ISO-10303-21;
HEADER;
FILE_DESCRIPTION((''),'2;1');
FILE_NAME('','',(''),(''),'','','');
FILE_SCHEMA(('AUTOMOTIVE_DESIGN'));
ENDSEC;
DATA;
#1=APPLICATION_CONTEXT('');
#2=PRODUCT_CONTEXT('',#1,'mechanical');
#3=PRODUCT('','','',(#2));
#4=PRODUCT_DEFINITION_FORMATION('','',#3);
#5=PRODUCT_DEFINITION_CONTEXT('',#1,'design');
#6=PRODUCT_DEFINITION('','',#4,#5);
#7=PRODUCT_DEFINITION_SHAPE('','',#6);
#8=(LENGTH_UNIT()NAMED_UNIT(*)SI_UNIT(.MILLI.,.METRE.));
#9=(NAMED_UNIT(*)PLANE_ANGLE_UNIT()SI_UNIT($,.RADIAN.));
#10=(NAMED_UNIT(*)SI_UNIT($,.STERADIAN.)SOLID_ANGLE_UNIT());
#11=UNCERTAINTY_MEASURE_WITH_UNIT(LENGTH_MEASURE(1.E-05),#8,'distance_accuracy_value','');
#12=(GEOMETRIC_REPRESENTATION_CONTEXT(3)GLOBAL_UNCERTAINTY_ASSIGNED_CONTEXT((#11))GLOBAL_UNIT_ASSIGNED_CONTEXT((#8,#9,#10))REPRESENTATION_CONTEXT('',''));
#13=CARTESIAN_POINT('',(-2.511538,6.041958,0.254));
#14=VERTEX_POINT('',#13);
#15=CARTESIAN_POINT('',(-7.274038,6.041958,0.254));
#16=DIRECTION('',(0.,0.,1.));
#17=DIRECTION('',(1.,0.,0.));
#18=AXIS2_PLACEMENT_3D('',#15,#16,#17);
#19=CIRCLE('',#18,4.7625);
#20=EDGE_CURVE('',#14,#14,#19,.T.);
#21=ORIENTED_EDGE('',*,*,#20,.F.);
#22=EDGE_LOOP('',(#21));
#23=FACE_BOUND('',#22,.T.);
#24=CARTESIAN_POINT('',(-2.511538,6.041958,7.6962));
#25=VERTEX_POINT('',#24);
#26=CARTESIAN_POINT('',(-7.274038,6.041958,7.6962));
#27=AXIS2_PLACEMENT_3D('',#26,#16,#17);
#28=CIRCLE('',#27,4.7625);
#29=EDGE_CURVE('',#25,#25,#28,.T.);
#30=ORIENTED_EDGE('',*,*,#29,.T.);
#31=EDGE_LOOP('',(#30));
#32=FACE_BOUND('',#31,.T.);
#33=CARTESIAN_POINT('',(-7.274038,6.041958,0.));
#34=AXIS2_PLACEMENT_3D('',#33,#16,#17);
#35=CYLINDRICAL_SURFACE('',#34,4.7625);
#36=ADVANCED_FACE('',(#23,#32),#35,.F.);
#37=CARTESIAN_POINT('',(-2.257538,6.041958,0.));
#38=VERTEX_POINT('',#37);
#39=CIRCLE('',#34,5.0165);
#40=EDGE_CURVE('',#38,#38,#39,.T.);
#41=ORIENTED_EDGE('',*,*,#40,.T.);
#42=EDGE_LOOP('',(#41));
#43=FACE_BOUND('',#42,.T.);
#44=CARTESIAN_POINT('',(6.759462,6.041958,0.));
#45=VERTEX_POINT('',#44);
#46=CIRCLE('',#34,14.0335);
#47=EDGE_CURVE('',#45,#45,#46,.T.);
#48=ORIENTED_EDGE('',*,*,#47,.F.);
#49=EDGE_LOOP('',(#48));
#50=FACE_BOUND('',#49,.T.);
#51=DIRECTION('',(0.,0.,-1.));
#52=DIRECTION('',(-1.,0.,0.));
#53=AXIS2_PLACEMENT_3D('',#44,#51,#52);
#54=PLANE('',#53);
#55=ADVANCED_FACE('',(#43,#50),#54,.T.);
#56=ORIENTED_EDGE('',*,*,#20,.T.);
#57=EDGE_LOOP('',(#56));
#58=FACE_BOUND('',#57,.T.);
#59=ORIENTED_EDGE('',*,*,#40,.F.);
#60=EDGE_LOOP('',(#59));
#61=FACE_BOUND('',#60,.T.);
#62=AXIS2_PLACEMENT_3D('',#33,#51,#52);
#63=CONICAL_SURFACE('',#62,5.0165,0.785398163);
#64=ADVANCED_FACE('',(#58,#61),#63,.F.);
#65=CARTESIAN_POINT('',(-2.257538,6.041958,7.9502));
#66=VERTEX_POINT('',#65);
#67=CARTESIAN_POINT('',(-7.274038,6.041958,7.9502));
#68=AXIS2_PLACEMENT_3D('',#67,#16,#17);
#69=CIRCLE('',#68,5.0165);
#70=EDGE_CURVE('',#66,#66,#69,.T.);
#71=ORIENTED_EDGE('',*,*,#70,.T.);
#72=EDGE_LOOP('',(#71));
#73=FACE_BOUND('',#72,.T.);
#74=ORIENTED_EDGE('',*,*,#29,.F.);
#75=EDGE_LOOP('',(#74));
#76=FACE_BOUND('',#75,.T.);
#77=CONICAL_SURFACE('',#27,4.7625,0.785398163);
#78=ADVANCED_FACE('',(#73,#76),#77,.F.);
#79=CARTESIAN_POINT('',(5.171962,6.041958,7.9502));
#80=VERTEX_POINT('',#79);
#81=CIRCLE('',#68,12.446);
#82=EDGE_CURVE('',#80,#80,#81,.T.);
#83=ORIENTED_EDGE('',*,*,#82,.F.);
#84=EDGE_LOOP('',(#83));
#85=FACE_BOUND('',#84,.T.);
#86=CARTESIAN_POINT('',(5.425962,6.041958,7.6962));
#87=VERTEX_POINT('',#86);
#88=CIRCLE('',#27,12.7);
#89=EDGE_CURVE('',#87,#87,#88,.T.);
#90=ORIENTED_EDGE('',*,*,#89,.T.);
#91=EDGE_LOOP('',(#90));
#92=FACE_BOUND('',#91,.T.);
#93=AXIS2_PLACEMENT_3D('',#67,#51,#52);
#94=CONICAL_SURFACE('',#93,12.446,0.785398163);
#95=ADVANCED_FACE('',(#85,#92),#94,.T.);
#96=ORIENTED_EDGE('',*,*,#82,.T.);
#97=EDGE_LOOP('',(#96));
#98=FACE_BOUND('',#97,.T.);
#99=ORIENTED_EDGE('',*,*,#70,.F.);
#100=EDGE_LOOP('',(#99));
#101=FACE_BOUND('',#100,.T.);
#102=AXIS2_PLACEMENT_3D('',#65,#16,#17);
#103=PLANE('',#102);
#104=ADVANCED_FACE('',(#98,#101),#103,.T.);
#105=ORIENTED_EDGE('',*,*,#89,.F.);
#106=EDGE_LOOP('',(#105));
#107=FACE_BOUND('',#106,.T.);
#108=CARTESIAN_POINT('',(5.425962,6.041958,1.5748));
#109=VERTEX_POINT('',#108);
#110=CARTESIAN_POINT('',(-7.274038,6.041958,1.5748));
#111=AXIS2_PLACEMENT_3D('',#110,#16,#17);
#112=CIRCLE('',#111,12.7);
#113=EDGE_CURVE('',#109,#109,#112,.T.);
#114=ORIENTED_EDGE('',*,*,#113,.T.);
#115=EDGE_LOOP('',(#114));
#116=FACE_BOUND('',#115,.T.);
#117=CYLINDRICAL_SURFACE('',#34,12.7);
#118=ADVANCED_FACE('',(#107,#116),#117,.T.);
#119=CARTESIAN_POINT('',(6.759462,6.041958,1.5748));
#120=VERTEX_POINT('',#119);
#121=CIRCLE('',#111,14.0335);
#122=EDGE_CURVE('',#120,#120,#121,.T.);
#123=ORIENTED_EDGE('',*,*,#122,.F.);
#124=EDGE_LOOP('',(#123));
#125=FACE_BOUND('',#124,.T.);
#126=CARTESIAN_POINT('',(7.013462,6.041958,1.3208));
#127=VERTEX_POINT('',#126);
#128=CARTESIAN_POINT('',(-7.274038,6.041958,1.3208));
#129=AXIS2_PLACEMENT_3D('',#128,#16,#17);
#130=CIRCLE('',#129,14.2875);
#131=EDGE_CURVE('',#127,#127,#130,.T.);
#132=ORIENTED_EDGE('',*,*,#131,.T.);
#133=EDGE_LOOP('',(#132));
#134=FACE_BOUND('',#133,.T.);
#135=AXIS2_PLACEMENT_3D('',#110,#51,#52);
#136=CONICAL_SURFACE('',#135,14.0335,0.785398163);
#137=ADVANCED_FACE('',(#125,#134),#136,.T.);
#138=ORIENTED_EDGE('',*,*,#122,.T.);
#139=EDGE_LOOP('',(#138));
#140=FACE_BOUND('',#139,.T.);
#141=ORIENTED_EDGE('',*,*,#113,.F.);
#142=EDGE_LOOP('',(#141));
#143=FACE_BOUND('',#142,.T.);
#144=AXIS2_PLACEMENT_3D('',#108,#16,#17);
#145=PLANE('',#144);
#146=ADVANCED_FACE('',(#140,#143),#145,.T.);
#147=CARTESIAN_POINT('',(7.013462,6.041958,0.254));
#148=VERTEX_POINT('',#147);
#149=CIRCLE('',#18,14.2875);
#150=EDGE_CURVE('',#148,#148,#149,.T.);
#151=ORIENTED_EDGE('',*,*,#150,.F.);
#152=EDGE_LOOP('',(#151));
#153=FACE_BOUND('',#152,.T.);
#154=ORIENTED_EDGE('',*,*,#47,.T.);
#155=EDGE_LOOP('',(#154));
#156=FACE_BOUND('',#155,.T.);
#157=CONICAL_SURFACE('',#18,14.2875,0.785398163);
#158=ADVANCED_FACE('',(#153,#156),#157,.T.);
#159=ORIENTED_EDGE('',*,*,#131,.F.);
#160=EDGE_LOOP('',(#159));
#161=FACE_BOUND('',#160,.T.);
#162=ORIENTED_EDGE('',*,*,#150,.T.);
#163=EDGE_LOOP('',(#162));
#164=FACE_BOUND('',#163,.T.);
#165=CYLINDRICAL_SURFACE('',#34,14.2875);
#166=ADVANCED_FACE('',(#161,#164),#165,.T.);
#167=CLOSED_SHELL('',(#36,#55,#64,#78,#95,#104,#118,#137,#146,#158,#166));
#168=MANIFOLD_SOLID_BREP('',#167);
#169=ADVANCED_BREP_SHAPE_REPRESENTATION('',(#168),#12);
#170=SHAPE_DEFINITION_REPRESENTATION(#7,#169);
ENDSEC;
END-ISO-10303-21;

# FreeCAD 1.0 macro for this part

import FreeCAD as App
import Part
import Sketcher
Q = App.Units.Quantity


def add_polygon(sketch, points):
    """Adds a closed chain of lines whose ends are joined by coincident constraints."""
    first, n = sketch.GeometryCount, len(points)
    for a, b in zip(points, points[1:] + points[:1]):
        sketch.addGeometry(Part.LineSegment(App.Vector(*a, 0), App.Vector(*b, 0)), False)
    for i in range(n):
        sketch.addConstraint(Sketcher.Constraint("Coincident", first + i, 2, first + (i + 1) % n, 1))

doc = App.newDocument("Part")
body = doc.addObject("PartDesign::Body", "Body")

sketch1 = body.newObject("Sketcher::SketchObject", "Sketch")
sketch1.AttachmentSupport = (doc.getObject("XZ_Plane"), [""])
sketch1.MapMode = "FlatFace"
sketch1.AttachmentOffset = App.Placement(App.Vector(0, 0, -6.041958), App.Rotation())
add_polygon(sketch1, [(5.17, 7.95), (5.43, 7.7), (5.43, 1.57), (6.76, 1.57), (7.01, 1.32), (7.01, 0.25), (6.76, 0), (-2.26, 0), (-2.51, 0.25), (-2.51, 7.7), (-2.26, 7.95)])
sketch1.addGeometry(Part.LineSegment(App.Vector(-7.27, 0, 0), App.Vector(-7.27, 7.95, 0)), True)
sketch1.addConstraint(Sketcher.Constraint("Vertical", 1))
sketch1.addConstraint(Sketcher.Constraint("Horizontal", 2))
sketch1.addConstraint(Sketcher.Constraint("Vertical", 4))
sketch1.addConstraint(Sketcher.Constraint("Horizontal", 6))
sketch1.addConstraint(Sketcher.Constraint("Vertical", 8))
sketch1.addConstraint(Sketcher.Constraint("Horizontal", 10))
sketch1.addConstraint(Sketcher.Constraint("Vertical", 11))
sketch1.addConstraint(Sketcher.Constraint("PointOnObject", 5, 2, -1))
sketch1.addConstraint(Sketcher.Constraint("PointOnObject", 11, 1, -1))
sketch1.addConstraint(Sketcher.Constraint("Parallel", 0, 3))
sketch1.addConstraint(Sketcher.Constraint("Perpendicular", 3, 5))
sketch1.addConstraint(Sketcher.Constraint("Perpendicular", 5, 7))
sketch1.addConstraint(Sketcher.Constraint("Perpendicular", 7, 9))
sketch1.addConstraint(Sketcher.Constraint("Horizontal", 4, 2, 7, 2))
sketch1.addConstraint(Sketcher.Constraint("Horizontal", 0, 2, 8, 2))
sketch1.addConstraint(Sketcher.Constraint("Horizontal", 10, 2, 11, 2))
sketch1.addConstraint(Sketcher.Constraint("Vertical", 2, 2, 5, 2))
sketch1.addConstraint(Sketcher.Constraint("Vertical", 6, 2, 9, 2))
sketch1.addConstraint(Sketcher.Constraint("Equal", 0, 3))
sketch1.addConstraint(Sketcher.Constraint("DistanceX", 11, 1, 1, 2, Q("0.5 in")))
sketch1.addConstraint(Sketcher.Constraint("DistanceX", 6, 2, 6, 1, Q("0.355 in")))
sketch1.addConstraint(Sketcher.Constraint("DistanceY", 1, 2, 1, 1, Q("0.241 in")))
sketch1.addConstraint(Sketcher.Constraint("DistanceY", 4, 2, 4, 1, Q("0.042 in")))
sketch1.addConstraint(Sketcher.Constraint("DistanceY", 8, 1, 8, 2, Q("0.293 in")))
sketch1.addConstraint(Sketcher.Constraint("DistanceX", 2, 1, 2, 2, Q("0.0525 in")))
sketch1.addConstraint(Sketcher.Constraint("DistanceX", -1, 1, 0, 2, 5.425962))
revolution = body.newObject("PartDesign::Revolution", "Revolution")
revolution.Profile = sketch1
revolution.ReferenceAxis = (sketch1, ["Axis0"])
revolution.Angle = 360

doc.recompute()
